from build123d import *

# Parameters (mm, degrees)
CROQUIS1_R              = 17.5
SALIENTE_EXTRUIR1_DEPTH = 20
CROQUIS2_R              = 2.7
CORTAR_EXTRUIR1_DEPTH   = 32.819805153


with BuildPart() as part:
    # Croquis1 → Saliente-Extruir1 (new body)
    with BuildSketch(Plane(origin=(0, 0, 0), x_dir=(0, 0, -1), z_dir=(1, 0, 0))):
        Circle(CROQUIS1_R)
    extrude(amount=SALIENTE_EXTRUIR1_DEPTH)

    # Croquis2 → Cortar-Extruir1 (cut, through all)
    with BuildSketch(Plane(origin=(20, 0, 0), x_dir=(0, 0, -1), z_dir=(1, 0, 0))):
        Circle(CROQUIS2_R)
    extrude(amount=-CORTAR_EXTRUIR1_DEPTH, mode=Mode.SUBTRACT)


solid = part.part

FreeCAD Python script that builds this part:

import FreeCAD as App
import Part
import Sketcher
from FreeCAD import Vector
Q = App.Units.Quantity

doc = App.newDocument("Part")
body = doc.addObject("PartDesign::Body", "Body")

sketch1 = body.newObject("Sketcher::SketchObject", "Sketch")
sketch1.AttachmentSupport = (doc.getObject("YZ_Plane"), [""])
sketch1.MapMode = "FlatFace"
sketch1.addGeometry(Part.Circle(Vector(0, 0, 0), Vector(0, 0, 1), 18), False)
sketch1.addConstraint([
    Sketcher.Constraint("Coincident", 0, 3, -1, 1),
    Sketcher.Constraint("Diameter", 0, Q("35 mm")),
])
pad1 = body.newObject("PartDesign::Pad", "Pad")
pad1.Profile = sketch1
pad1.Length = 20

sketch2 = body.newObject("Sketcher::SketchObject", "Sketch001")
sketch2.AttachmentSupport = (doc.getObject("YZ_Plane"), [""])
sketch2.MapMode = "FlatFace"
sketch2.AttachmentOffset = App.Placement(Vector(0, 0, 20), App.Rotation())
sketch2.addGeometry(Part.Circle(Vector(0, 0, 0), Vector(0, 0, 1), 2.7), False)
sketch2.addConstraint([
    Sketcher.Constraint("Coincident", 0, 3, -1, 1),
    Sketcher.Constraint("Diameter", 0, Q("5.4 mm")),
])
pocket1 = body.newObject("PartDesign::Pocket", "Pocket")
pocket1.Profile = sketch2
pocket1.Type = "ThroughAll"

doc.recompute()
